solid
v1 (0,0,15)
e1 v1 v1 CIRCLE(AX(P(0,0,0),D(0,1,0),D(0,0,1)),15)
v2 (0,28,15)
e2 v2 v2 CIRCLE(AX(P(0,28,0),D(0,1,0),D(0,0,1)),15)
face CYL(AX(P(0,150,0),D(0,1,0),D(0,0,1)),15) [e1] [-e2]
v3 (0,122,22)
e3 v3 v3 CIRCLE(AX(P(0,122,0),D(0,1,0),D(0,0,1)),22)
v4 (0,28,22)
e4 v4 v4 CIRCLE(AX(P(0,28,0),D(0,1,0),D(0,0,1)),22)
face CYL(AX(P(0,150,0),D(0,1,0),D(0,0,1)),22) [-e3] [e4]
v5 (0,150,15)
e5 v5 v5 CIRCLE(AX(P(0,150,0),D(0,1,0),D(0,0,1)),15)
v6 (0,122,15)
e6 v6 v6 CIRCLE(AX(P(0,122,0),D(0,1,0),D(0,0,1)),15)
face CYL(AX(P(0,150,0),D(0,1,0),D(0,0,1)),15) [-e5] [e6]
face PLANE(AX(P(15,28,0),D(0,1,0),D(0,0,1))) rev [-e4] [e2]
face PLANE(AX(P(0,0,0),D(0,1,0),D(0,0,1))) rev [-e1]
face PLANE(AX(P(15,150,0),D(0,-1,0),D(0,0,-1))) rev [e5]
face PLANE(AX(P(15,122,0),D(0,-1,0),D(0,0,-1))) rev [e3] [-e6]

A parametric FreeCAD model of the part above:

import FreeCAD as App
import Part
import Sketcher

V = App.Vector
Q = App.Units.Quantity


def add_polygon(sketch, points):
    """Adds a closed chain of lines whose ends are joined by coincident constraints."""
    first, n = sketch.GeometryCount, len(points)
    for a, b in zip(points, points[1:] + points[:1]):
        sketch.addGeometry(Part.LineSegment(App.Vector(*a, 0), App.Vector(*b, 0)), False)
    for i in range(n):
        sketch.addConstraint(Sketcher.Constraint("Coincident", first + i, 2, first + (i + 1) % n, 1))

doc = App.newDocument("Part")
body = doc.addObject("PartDesign::Body", "Body")

# Sketch on XY plane
sketch1 = doc.addObject("Sketcher::SketchObject", "Sketch")
body.addObject(sketch1)
sketch1.AttachmentSupport = (doc.XY_Plane, [""])
sketch1.MapMode = "FlatFace"
add_polygon(sketch1, [(0, 0), (15, 0), (15, 28), (22, 28), (22, 122), (15, 122), (15, 150), (0, 150)])  # lines 0-7
sketch1.addConstraint([
    Sketcher.Constraint("Horizontal", 0),
    Sketcher.Constraint("Vertical", 1),
    Sketcher.Constraint("Horizontal", 2),
    Sketcher.Constraint("Vertical", 3),
    Sketcher.Constraint("Horizontal", 4),
    Sketcher.Constraint("Vertical", 5),
    Sketcher.Constraint("Horizontal", 6),
    Sketcher.Constraint("Vertical", 7),
    Sketcher.Constraint("Coincident", 7, 2, -1, 1),
    Sketcher.Constraint("Vertical", 1, 2, 4, 2),
    Sketcher.Constraint("Equal", 1, 5),
    Sketcher.Constraint("DistanceX", 0, 1, 0, 2, Q("15 mm")),
    Sketcher.Constraint("DistanceX", 2, 1, 2, 2, Q("7 mm")),
    Sketcher.Constraint("DistanceY", 1, 1, 1, 2, Q("28 mm")),
    Sketcher.Constraint("DistanceY", 3, 1, 3, 2, Q("94 mm")),
])
revolution = doc.addObject("PartDesign::Revolution", "Revolution")
body.addObject(revolution)
revolution.Profile = sketch1
revolution.ReferenceAxis = (sketch1, ["V_Axis"])
revolution.Angle = 360

doc.recompute()
